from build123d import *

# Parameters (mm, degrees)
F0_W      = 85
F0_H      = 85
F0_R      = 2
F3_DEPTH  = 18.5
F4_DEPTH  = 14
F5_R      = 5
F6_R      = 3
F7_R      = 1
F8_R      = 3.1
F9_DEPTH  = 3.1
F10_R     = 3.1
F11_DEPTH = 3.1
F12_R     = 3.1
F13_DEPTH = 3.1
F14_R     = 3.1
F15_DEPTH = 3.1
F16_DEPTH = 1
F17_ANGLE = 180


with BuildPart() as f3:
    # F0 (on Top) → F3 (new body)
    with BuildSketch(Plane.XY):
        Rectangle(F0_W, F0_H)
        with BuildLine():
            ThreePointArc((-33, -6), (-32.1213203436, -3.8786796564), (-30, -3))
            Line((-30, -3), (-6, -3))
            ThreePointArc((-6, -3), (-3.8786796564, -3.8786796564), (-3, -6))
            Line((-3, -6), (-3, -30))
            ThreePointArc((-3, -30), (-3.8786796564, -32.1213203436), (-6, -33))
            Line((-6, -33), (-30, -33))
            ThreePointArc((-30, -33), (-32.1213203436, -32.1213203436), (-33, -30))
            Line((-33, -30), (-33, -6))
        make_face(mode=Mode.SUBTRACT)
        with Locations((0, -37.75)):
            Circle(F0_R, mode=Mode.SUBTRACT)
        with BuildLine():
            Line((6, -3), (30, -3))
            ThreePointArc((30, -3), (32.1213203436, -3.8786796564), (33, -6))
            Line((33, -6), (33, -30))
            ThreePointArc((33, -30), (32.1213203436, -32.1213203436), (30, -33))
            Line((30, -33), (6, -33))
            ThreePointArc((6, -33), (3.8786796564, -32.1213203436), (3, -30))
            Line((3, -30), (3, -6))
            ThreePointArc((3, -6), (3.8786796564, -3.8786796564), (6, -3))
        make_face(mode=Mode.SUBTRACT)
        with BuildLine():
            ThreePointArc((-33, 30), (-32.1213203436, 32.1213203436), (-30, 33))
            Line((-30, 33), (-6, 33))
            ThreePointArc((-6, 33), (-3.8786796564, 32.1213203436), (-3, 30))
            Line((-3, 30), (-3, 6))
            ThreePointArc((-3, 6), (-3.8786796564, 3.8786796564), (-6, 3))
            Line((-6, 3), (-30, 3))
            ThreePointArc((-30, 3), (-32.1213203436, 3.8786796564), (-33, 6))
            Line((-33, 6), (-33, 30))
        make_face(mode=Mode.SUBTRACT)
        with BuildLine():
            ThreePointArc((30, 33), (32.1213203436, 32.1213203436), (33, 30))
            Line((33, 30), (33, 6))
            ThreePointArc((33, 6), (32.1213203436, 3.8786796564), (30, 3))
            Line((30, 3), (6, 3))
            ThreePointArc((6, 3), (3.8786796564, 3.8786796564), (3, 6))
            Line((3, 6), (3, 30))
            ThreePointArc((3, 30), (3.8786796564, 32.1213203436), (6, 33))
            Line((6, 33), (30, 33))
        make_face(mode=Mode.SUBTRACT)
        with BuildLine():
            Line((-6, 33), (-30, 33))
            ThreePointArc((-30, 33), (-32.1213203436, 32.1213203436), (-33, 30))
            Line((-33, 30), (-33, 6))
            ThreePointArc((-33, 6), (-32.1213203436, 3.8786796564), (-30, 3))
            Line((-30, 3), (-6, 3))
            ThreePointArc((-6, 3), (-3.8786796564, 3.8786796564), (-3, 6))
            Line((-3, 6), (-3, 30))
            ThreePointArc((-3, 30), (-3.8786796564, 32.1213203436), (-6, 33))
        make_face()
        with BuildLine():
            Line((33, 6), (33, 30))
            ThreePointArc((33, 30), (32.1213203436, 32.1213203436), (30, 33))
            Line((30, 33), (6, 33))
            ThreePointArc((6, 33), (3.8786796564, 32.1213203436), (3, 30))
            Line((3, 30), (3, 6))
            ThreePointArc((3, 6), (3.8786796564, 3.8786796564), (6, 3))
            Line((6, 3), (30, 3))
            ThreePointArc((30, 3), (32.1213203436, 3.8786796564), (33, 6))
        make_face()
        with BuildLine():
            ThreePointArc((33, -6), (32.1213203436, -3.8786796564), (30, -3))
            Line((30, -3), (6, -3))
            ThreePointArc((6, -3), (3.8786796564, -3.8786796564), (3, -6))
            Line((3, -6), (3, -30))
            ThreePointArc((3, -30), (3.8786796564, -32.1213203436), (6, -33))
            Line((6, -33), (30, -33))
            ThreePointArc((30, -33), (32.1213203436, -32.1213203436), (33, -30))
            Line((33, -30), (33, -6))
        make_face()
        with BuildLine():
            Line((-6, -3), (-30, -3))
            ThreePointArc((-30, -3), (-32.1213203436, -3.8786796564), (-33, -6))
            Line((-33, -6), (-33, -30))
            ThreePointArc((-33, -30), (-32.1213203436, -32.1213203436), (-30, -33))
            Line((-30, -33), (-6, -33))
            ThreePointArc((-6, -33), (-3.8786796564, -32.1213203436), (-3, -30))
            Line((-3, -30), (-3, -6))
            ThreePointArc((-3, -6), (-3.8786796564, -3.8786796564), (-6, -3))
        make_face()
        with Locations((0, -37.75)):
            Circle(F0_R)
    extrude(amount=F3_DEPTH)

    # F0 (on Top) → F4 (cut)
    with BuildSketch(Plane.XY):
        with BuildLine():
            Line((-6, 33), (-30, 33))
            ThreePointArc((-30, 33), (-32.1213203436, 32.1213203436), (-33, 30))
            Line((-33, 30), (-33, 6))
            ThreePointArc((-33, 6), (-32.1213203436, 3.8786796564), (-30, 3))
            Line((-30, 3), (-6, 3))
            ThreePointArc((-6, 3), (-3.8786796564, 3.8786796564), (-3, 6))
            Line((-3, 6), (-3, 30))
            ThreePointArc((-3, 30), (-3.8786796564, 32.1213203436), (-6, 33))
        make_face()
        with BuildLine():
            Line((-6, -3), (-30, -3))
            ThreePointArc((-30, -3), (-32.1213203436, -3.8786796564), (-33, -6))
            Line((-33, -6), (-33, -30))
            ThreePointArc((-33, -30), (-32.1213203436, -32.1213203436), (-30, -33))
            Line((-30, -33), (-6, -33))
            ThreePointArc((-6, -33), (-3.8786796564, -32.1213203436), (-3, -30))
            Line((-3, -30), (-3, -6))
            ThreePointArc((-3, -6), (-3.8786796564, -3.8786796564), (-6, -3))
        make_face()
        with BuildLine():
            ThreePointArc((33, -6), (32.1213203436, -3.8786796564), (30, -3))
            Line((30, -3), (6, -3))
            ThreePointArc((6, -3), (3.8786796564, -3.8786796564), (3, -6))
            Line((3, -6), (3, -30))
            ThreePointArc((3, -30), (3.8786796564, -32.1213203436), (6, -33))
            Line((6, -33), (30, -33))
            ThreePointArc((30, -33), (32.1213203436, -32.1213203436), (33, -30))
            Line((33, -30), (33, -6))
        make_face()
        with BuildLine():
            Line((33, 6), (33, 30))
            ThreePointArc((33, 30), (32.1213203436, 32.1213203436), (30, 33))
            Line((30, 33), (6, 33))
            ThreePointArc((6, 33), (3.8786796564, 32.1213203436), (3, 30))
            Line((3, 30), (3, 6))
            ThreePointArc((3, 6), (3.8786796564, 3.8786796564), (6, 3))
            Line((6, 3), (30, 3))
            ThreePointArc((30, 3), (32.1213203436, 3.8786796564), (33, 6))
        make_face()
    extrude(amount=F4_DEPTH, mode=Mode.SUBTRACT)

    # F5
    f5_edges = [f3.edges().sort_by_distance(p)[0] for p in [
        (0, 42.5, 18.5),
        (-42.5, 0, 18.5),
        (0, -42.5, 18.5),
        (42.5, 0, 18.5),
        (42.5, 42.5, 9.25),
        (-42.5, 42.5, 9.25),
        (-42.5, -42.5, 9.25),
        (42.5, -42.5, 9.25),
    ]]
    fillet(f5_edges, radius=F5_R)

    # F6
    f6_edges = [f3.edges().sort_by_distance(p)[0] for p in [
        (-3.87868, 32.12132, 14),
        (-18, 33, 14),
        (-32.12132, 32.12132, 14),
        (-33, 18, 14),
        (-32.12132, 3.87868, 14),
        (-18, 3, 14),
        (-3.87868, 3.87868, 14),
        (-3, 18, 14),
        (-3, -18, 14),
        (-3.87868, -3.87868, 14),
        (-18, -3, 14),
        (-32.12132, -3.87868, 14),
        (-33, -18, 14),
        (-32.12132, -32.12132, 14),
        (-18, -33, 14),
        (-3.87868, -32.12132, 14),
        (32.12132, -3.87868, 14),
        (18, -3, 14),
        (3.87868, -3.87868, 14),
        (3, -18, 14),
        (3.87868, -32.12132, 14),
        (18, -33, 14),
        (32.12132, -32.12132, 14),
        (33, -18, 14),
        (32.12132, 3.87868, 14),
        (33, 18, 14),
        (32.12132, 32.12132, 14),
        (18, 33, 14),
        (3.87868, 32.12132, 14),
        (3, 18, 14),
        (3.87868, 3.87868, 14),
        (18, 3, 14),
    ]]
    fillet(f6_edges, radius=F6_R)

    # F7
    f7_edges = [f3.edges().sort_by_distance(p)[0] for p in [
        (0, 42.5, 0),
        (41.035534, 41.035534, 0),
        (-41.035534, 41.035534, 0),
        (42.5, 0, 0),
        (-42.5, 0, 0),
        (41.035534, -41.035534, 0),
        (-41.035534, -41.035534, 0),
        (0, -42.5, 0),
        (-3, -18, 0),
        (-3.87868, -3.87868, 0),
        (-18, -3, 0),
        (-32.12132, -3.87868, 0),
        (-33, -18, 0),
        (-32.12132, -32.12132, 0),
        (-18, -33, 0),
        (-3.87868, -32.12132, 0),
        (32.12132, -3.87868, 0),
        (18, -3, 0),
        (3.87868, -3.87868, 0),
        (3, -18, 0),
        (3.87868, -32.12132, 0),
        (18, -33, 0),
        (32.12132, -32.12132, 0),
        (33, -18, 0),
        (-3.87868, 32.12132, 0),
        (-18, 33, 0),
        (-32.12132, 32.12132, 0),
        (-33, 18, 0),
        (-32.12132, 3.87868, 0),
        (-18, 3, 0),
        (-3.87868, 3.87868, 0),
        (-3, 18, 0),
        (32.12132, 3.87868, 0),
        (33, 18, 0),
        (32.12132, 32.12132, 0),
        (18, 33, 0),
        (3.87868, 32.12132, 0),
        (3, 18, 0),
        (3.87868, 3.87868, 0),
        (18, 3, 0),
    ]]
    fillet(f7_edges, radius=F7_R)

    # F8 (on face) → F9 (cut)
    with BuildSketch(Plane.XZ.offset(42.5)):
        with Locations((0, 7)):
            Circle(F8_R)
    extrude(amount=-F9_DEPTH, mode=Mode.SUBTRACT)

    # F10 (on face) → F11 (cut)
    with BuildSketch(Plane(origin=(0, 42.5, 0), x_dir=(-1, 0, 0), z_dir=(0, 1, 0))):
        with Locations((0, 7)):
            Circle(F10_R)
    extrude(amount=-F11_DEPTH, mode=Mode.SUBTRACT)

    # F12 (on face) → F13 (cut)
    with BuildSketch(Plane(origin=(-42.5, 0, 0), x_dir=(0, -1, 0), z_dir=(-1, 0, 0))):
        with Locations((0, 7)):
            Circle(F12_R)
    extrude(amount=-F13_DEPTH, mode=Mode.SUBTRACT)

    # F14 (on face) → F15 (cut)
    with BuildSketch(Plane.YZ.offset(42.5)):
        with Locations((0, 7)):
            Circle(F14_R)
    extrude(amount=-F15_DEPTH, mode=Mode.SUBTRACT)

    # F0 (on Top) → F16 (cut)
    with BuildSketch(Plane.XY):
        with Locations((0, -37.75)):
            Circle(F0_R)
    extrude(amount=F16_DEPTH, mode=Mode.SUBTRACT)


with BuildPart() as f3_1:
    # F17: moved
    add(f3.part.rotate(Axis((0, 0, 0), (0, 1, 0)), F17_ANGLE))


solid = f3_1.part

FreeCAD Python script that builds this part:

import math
import FreeCAD as App
import Part
import Sketcher
Q = App.Units.Quantity


def edges_at(feature, points):
    """Names of the edges that pass closest to the given points."""
    edges = feature.Shape.Edges
    near = lambda p: min(range(len(edges)), key=lambda i: edges[i].distToShape(Part.Vertex(*p))[0])
    return sorted({f"Edge{near(p) + 1}" for p in points})


def add_polygon(sketch, points):
    """Adds a closed chain of lines whose ends are joined by coincident constraints."""
    first, n = sketch.GeometryCount, len(points)
    for a, b in zip(points, points[1:] + points[:1]):
        sketch.addGeometry(Part.LineSegment(App.Vector(*a, 0), App.Vector(*b, 0)), False)
    for i in range(n):
        sketch.addConstraint(Sketcher.Constraint("Coincident", first + i, 2, first + (i + 1) % n, 1))

doc = App.newDocument("Part")
body = doc.addObject("PartDesign::Body", "Body")

sketch1 = body.newObject("Sketcher::SketchObject", "Sketch")
sketch1.AttachmentSupport = (doc.getObject("XY_Plane"), [""])
sketch1.MapMode = "FlatFace"
add_polygon(sketch1, [(-42, 42), (-42, -42), (42, -42), (42, 42)])
sketch1.addConstraint([
    Sketcher.Constraint("Vertical", 0),
    Sketcher.Constraint("Horizontal", 1),
    Sketcher.Constraint("Vertical", 2),
    Sketcher.Constraint("Horizontal", 3),
    Sketcher.Constraint("Symmetric", 0, 2, 2, 2, -1, 1),
    Sketcher.Constraint("Equal", 3, 0),
    Sketcher.Constraint("DistanceX", 1, 1, 1, 2, Q("85 mm")),
])
pad1 = body.newObject("PartDesign::Pad", "Pad")
pad1.Profile = sketch1
pad1.Length = 18.5

sketch2 = body.newObject("Sketcher::SketchObject", "Sketch001")
sketch2.AttachmentSupport = (doc.getObject("XY_Plane"), [""])
sketch2.MapMode = "FlatFace"
sketch2.addGeometry([
    Part.LineSegment(App.Vector(-6, 33, 0), App.Vector(-30, 33, 0)),
    Part.ArcOfCircle(Part.Circle(App.Vector(-30, 30, 0), App.Vector(0, 0, 1), 3), math.radians(90), math.radians(180)),
    Part.LineSegment(App.Vector(-33, 30, 0), App.Vector(-33, 6, 0)),
    Part.ArcOfCircle(Part.Circle(App.Vector(-30, 6, 0), App.Vector(0, 0, 1), 3), math.radians(180), math.radians(270)),
    Part.LineSegment(App.Vector(-30, 3, 0), App.Vector(-6, 3, 0)),
    Part.ArcOfCircle(Part.Circle(App.Vector(-6, 6, 0), App.Vector(0, 0, 1), 3), math.radians(-90), math.radians(0)),
    Part.LineSegment(App.Vector(-3, 6, 0), App.Vector(-3, 30, 0)),
    Part.ArcOfCircle(Part.Circle(App.Vector(-6, 30, 0), App.Vector(0, 0, 1), 3), math.radians(0), math.radians(90)),
    Part.LineSegment(App.Vector(-6, -3, 0), App.Vector(-30, -3, 0)),
    Part.ArcOfCircle(Part.Circle(App.Vector(-30, -6, 0), App.Vector(0, 0, 1), 3), math.radians(90), math.radians(180)),
    Part.LineSegment(App.Vector(-33, -6, 0), App.Vector(-33, -30, 0)),
    Part.ArcOfCircle(Part.Circle(App.Vector(-30, -30, 0), App.Vector(0, 0, 1), 3), math.radians(180), math.radians(270)),
    Part.LineSegment(App.Vector(-30, -33, 0), App.Vector(-6, -33, 0)),
    Part.ArcOfCircle(Part.Circle(App.Vector(-6, -30, 0), App.Vector(0, 0, 1), 3), math.radians(-90), math.radians(0)),
    Part.LineSegment(App.Vector(-3, -30, 0), App.Vector(-3, -6, 0)),
    Part.ArcOfCircle(Part.Circle(App.Vector(-6, -6, 0), App.Vector(0, 0, 1), 3), math.radians(0), math.radians(90)),
    Part.ArcOfCircle(Part.Circle(App.Vector(30, -6, 0), App.Vector(0, 0, 1), 3), math.radians(0), math.radians(90)),
    Part.LineSegment(App.Vector(30, -3, 0), App.Vector(6, -3, 0)),
    Part.ArcOfCircle(Part.Circle(App.Vector(6, -6, 0), App.Vector(0, 0, 1), 3), math.radians(90), math.radians(180)),
    Part.LineSegment(App.Vector(3, -6, 0), App.Vector(3, -30, 0)),
    Part.ArcOfCircle(Part.Circle(App.Vector(6, -30, 0), App.Vector(0, 0, 1), 3), math.radians(180), math.radians(270)),
    Part.LineSegment(App.Vector(6, -33, 0), App.Vector(30, -33, 0)),
    Part.ArcOfCircle(Part.Circle(App.Vector(30, -30, 0), App.Vector(0, 0, 1), 3), math.radians(-90), math.radians(0)),
    Part.LineSegment(App.Vector(33, -30, 0), App.Vector(33, -6, 0)),
    Part.LineSegment(App.Vector(33, 6, 0), App.Vector(33, 30, 0)),
    Part.ArcOfCircle(Part.Circle(App.Vector(30, 30, 0), App.Vector(0, 0, 1), 3), math.radians(0), math.radians(90)),
    Part.LineSegment(App.Vector(30, 33, 0), App.Vector(6, 33, 0)),
    Part.ArcOfCircle(Part.Circle(App.Vector(6, 30, 0), App.Vector(0, 0, 1), 3), math.radians(90), math.radians(180)),
    Part.LineSegment(App.Vector(3, 30, 0), App.Vector(3, 6, 0)),
    Part.ArcOfCircle(Part.Circle(App.Vector(6, 6, 0), App.Vector(0, 0, 1), 3), math.radians(180), math.radians(270)),
    Part.LineSegment(App.Vector(6, 3, 0), App.Vector(30, 3, 0)),
    Part.ArcOfCircle(Part.Circle(App.Vector(30, 6, 0), App.Vector(0, 0, 1), 3), math.radians(-90), math.radians(0)),
], False)
sketch2.addConstraint([
    Sketcher.Constraint("Tangent", 0, 2, 1, 1),
    Sketcher.Constraint("Tangent", 1, 2, 2, 1),
    Sketcher.Constraint("Tangent", 2, 2, 3, 1),
    Sketcher.Constraint("Tangent", 3, 2, 4, 1),
    Sketcher.Constraint("Tangent", 4, 2, 5, 1),
    Sketcher.Constraint("Tangent", 5, 2, 6, 1),
    Sketcher.Constraint("Tangent", 6, 2, 7, 1),
    Sketcher.Constraint("Tangent", 7, 2, 0, 1),
    Sketcher.Constraint("Tangent", 8, 2, 9, 1),
    Sketcher.Constraint("Tangent", 9, 2, 10, 1),
    Sketcher.Constraint("Tangent", 10, 2, 11, 1),
    Sketcher.Constraint("Tangent", 11, 2, 12, 1),
    Sketcher.Constraint("Tangent", 12, 2, 13, 1),
    Sketcher.Constraint("Tangent", 13, 2, 14, 1),
    Sketcher.Constraint("Tangent", 14, 2, 15, 1),
    Sketcher.Constraint("Tangent", 15, 2, 8, 1),
    Sketcher.Constraint("Tangent", 16, 2, 17, 1),
    Sketcher.Constraint("Tangent", 17, 2, 18, 1),
    Sketcher.Constraint("Tangent", 18, 2, 19, 1),
    Sketcher.Constraint("Tangent", 19, 2, 20, 1),
    Sketcher.Constraint("Tangent", 20, 2, 21, 1),
    Sketcher.Constraint("Tangent", 21, 2, 22, 1),
    Sketcher.Constraint("Tangent", 22, 2, 23, 1),
    Sketcher.Constraint("Tangent", 23, 2, 16, 1),
    Sketcher.Constraint("Tangent", 24, 2, 25, 1),
    Sketcher.Constraint("Tangent", 25, 2, 26, 1),
    Sketcher.Constraint("Tangent", 26, 2, 27, 1),
    Sketcher.Constraint("Tangent", 27, 2, 28, 1),
    Sketcher.Constraint("Tangent", 28, 2, 29, 1),
    Sketcher.Constraint("Tangent", 29, 2, 30, 1),
    Sketcher.Constraint("Tangent", 30, 2, 31, 1),
    Sketcher.Constraint("Tangent", 31, 2, 24, 1),
    Sketcher.Constraint("Horizontal", 0),
    Sketcher.Constraint("Vertical", 2),
    Sketcher.Constraint("Horizontal", 4),
    Sketcher.Constraint("Vertical", 6),
    Sketcher.Constraint("Horizontal", 8),
    Sketcher.Constraint("Vertical", 10),
    Sketcher.Constraint("Horizontal", 12),
    Sketcher.Constraint("Vertical", 14),
    Sketcher.Constraint("Horizontal", 17),
    Sketcher.Constraint("Vertical", 19),
    Sketcher.Constraint("Horizontal", 21),
    Sketcher.Constraint("Vertical", 23),
    Sketcher.Constraint("Vertical", 24),
    Sketcher.Constraint("Horizontal", 26),
    Sketcher.Constraint("Vertical", 28),
    Sketcher.Constraint("Horizontal", 30),
    Sketcher.Constraint("Equal", 1, 3),
    Sketcher.Constraint("Equal", 3, 5),
    Sketcher.Constraint("Equal", 5, 7),
    Sketcher.Constraint("Equal", 7, 9),
    Sketcher.Constraint("Equal", 9, 11),
    Sketcher.Constraint("Equal", 11, 13),
    Sketcher.Constraint("Equal", 13, 15),
    Sketcher.Constraint("Equal", 15, 16),
    Sketcher.Constraint("Equal", 16, 18),
    Sketcher.Constraint("Equal", 18, 20),
    Sketcher.Constraint("Equal", 20, 22),
    Sketcher.Constraint("Equal", 22, 25),
    Sketcher.Constraint("Equal", 25, 27),
    Sketcher.Constraint("Equal", 27, 29),
    Sketcher.Constraint("Equal", 29, 31),
    Sketcher.Constraint("Symmetric", 3, 3, 16, 3, -1, 1),
    Sketcher.Constraint("Symmetric", 7, 3, 20, 3, -1, 1),
    Sketcher.Constraint("Symmetric", 11, 3, 25, 3, -1, 1),
    Sketcher.Constraint("Symmetric", 15, 3, 29, 3, -1, 1),
    Sketcher.Constraint("Symmetric", 9, 3, 16, 3, -2),
    Sketcher.Constraint("Symmetric", 13, 3, 20, 3, -2),
    Sketcher.Constraint("Equal", 30, 2),
    Sketcher.Constraint("Radius", 1, Q("3 mm")),
    Sketcher.Constraint("DistanceX", 0, 2, 0, 1, Q("24 mm")),
    Sketcher.Constraint("DistanceX", 1, 3, -1, 1, Q("30 mm")),
    Sketcher.Constraint("DistanceY", -1, 1, 1, 3, Q("30 mm")),
])
pocket1 = body.newObject("PartDesign::Pocket", "Pocket")
pocket1.Profile = sketch2
pocket1.Length = 14
pocket1.Reversed = True
doc.recompute()

fillet = body.newObject("PartDesign::Fillet", "Fillet")
fillet.Base = (pocket1, edges_at(pocket1, [
    (0, 42.5, 18.5),
    (-42.5, 0, 18.5),
    (0, -42.5, 18.5),
    (42.5, 0, 18.5),
    (42.5, 42.5, 9.25),
    (-42.5, 42.5, 9.25),
    (-42.5, -42.5, 9.25),
    (42.5, -42.5, 9.25),
]))
fillet.Radius = 5
doc.recompute()

fillet2 = body.newObject("PartDesign::Fillet", "Fillet001")
fillet2.Base = (fillet, edges_at(fillet, [
    (-3.879, 32.121, 14),
    (-18, 33, 14),
    (-32.121, 32.121, 14),
    (-33, 18, 14),
    (-32.121, 3.879, 14),
    (-18, 3, 14),
    (-3.879, 3.879, 14),
    (-3, 18, 14),
    (-3, -18, 14),
    (-3.879, -3.879, 14),
    (-18, -3, 14),
    (-32.121, -3.879, 14),
    (-33, -18, 14),
    (-32.121, -32.121, 14),
    (-18, -33, 14),
    (-3.879, -32.121, 14),
    (32.121, -3.879, 14),
    (18, -3, 14),
    (3.879, -3.879, 14),
    (3, -18, 14),
    (3.879, -32.121, 14),
    (18, -33, 14),
    (32.121, -32.121, 14),
    (33, -18, 14),
    (32.121, 3.879, 14),
    (33, 18, 14),
    (32.121, 32.121, 14),
    (18, 33, 14),
    (3.879, 32.121, 14),
    (3, 18, 14),
    (3.879, 3.879, 14),
    (18, 3, 14),
]))
fillet2.Radius = 3
doc.recompute()

fillet3 = body.newObject("PartDesign::Fillet", "Fillet002")
fillet3.Base = (fillet2, edges_at(fillet2, [
    (0, 42.5, 0),
    (41.036, 41.036, 0),
    (-41.036, 41.036, 0),
    (42.5, 0, 0),
    (-42.5, 0, 0),
    (41.036, -41.036, 0),
    (-41.036, -41.036, 0),
    (0, -42.5, 0),
    (-3, -18, 0),
    (-3.879, -3.879, 0),
    (-18, -3, 0),
    (-32.121, -3.879, 0),
    (-33, -18, 0),
    (-32.121, -32.121, 0),
    (-18, -33, 0),
    (-3.879, -32.121, 0),
    (32.121, -3.879, 0),
    (18, -3, 0),
    (3.879, -3.879, 0),
    (3, -18, 0),
    (3.879, -32.121, 0),
    (18, -33, 0),
    (32.121, -32.121, 0),
    (33, -18, 0),
    (-3.879, 32.121, 0),
    (-18, 33, 0),
    (-32.121, 32.121, 0),
    (-33, 18, 0),
    (-32.121, 3.879, 0),
    (-18, 3, 0),
    (-3.879, 3.879, 0),
    (-3, 18, 0),
    (32.121, 3.879, 0),
    (33, 18, 0),
    (32.121, 32.121, 0),
    (18, 33, 0),
    (3.879, 32.121, 0),
    (3, 18, 0),
    (3.879, 3.879, 0),
    (18, 3, 0),
]))
fillet3.Radius = 1

sketch3 = body.newObject("Sketcher::SketchObject", "Sketch002")
sketch3.AttachmentSupport = (doc.getObject("XZ_Plane"), [""])
sketch3.MapMode = "FlatFace"
sketch3.AttachmentOffset = App.Placement(App.Vector(0, 0, 42.5), App.Rotation())
sketch3.addGeometry(Part.Circle(App.Vector(0, 7, 0), App.Vector(0, 0, 1), 3.1), False)
sketch3.addConstraint([
    Sketcher.Constraint("PointOnObject", 0, 3, -2),
    Sketcher.Constraint("Diameter", 0, Q("6.2 mm")),
    Sketcher.Constraint("DistanceY", -1, 1, 0, 3, Q("7 mm")),
])
pocket2 = body.newObject("PartDesign::Pocket", "Pocket001")
pocket2.Profile = sketch3
pocket2.Length = 3.1

sketch4 = body.newObject("Sketcher::SketchObject", "Sketch003")
sketch4.AttachmentSupport = (doc.getObject("XZ_Plane"), [""])
sketch4.MapMode = "FlatFace"
sketch4.AttachmentOffset = App.Placement(App.Vector(0, 0, -42.5), App.Rotation())
sketch4.addGeometry(Part.Circle(App.Vector(0, 7, 0), App.Vector(0, 0, 1), 3.1), False)
sketch4.addConstraint([
    Sketcher.Constraint("PointOnObject", 0, 3, -2),
    Sketcher.Constraint("Diameter", 0, Q("6.2 mm")),
    Sketcher.Constraint("DistanceY", -1, 1, 0, 3, Q("7 mm")),
])
pocket3 = body.newObject("PartDesign::Pocket", "Pocket002")
pocket3.Profile = sketch4
pocket3.Length = 3.1
pocket3.Reversed = True

sketch5 = body.newObject("Sketcher::SketchObject", "Sketch004")
sketch5.AttachmentSupport = (doc.getObject("YZ_Plane"), [""])
sketch5.MapMode = "FlatFace"
sketch5.AttachmentOffset = App.Placement(App.Vector(0, 0, -42.5), App.Rotation())
sketch5.addGeometry(Part.Circle(App.Vector(0, 7, 0), App.Vector(0, 0, 1), 3.1), False)
sketch5.addConstraint([
    Sketcher.Constraint("PointOnObject", 0, 3, -2),
    Sketcher.Constraint("Diameter", 0, Q("6.2 mm")),
    Sketcher.Constraint("DistanceY", -1, 1, 0, 3, Q("7 mm")),
])
pocket4 = body.newObject("PartDesign::Pocket", "Pocket003")
pocket4.Profile = sketch5
pocket4.Length = 3.1
pocket4.Reversed = True

sketch6 = body.newObject("Sketcher::SketchObject", "Sketch005")
sketch6.AttachmentSupport = (doc.getObject("YZ_Plane"), [""])
sketch6.MapMode = "FlatFace"
sketch6.AttachmentOffset = App.Placement(App.Vector(0, 0, 42.5), App.Rotation())
sketch6.addGeometry(Part.Circle(App.Vector(0, 7, 0), App.Vector(0, 0, 1), 3.1), False)
sketch6.addConstraint([
    Sketcher.Constraint("PointOnObject", 0, 3, -2),
    Sketcher.Constraint("Diameter", 0, Q("6.2 mm")),
    Sketcher.Constraint("DistanceY", -1, 1, 0, 3, Q("7 mm")),
])
pocket5 = body.newObject("PartDesign::Pocket", "Pocket004")
pocket5.Profile = sketch6
pocket5.Length = 3.1

sketch7 = body.newObject("Sketcher::SketchObject", "Sketch006")
sketch7.AttachmentSupport = (doc.getObject("XY_Plane"), [""])
sketch7.MapMode = "FlatFace"
sketch7.addGeometry(Part.Circle(App.Vector(0, -37.8, 0), App.Vector(0, 0, 1), 2), False)
sketch7.addConstraint([
    Sketcher.Constraint("PointOnObject", 0, 3, -2),
    Sketcher.Constraint("Diameter", 0, Q("4 mm")),
    Sketcher.Constraint("DistanceY", 0, 3, -1, 1, Q("37.75 mm")),
])
pocket6 = body.newObject("PartDesign::Pocket", "Pocket005")
pocket6.Profile = sketch7
pocket6.Length = 1
pocket6.Reversed = True
body2 = doc.addObject("PartDesign::Body", "Body001")
doc.recompute()

body.Placement = App.Placement(App.Vector(0, 0, 0), App.Rotation(App.Vector(0, 1, 0), 180))
boolean = body2.newObject("PartDesign::Boolean", "Boolean")
boolean.Type = "Fuse"
boolean.addObjects([body])

doc.recompute()
